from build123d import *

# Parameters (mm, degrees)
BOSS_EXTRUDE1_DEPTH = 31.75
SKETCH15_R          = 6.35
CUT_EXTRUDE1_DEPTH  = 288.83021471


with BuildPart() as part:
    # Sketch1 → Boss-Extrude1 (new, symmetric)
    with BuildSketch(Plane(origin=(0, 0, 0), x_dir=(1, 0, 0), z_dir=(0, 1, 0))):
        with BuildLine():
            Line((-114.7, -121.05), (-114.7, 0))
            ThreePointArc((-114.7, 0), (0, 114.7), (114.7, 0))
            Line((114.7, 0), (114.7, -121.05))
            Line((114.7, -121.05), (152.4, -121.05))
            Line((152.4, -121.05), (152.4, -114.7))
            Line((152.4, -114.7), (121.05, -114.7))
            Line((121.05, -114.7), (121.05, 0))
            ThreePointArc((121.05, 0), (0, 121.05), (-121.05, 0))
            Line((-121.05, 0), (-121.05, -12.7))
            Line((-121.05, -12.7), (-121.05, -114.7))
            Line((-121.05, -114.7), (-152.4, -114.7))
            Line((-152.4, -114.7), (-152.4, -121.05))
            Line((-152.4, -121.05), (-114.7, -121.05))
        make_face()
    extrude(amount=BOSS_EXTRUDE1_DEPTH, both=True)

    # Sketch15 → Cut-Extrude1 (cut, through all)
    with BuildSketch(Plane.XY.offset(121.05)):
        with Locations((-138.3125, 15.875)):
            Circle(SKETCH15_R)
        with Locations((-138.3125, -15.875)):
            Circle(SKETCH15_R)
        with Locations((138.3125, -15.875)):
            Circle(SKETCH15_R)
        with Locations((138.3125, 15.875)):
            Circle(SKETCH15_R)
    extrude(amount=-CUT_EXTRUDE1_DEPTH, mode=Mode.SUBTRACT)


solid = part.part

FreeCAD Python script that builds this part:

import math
import FreeCAD as App
import Part
import Sketcher

V = App.Vector

doc = App.newDocument("Part")
body = doc.addObject("PartDesign::Body", "Body")

# Sketch on XZ plane
sketch1 = doc.addObject("Sketcher::SketchObject", "Sketch")
body.addObject(sketch1)
sketch1.AttachmentSupport = (doc.XZ_Plane, [""])
sketch1.MapMode = "FlatFace"
sketch1.addGeometry([
    Part.LineSegment(V(-115, 121, 0), V(-115, 0, 0)),  # 0
    Part.ArcOfCircle(Part.Circle(V(0, 0, 0), V(0, 0, 1), 115), math.radians(180), math.radians(360)),  # 1
    Part.LineSegment(V(115, 0, 0), V(115, 121, 0)),  # 2
    Part.LineSegment(V(115, 121, 0), V(152, 121, 0)),  # 3
    Part.LineSegment(V(152, 121, 0), V(152, 115, 0)),  # 4
    Part.LineSegment(V(152, 115, 0), V(121, 115, 0)),  # 5
    Part.LineSegment(V(121, 115, 0), V(121, 0, 0)),  # 6
    Part.ArcOfCircle(Part.Circle(V(0, 0, 0), V(0, 0, 1), 121), math.radians(180), math.radians(360)),  # 7
    Part.LineSegment(V(-121, 0, 0), V(-121, 115, 0)),  # 8
    Part.LineSegment(V(-121, 115, 0), V(-152, 115, 0)),  # 9
    Part.LineSegment(V(-152, 115, 0), V(-152, 121, 0)),  # 10
    Part.LineSegment(V(-152, 121, 0), V(-115, 121, 0)),  # 11
], False)
sketch1.addConstraint([
    Sketcher.Constraint("Tangent", 0, 2, 1, 1),
    Sketcher.Constraint("Tangent", 1, 2, 2, 1),
    Sketcher.Constraint("Coincident", 2, 2, 3, 1),
    Sketcher.Constraint("Coincident", 3, 2, 4, 1),
    Sketcher.Constraint("Coincident", 4, 2, 5, 1),
    Sketcher.Constraint("Coincident", 5, 2, 6, 1),
    Sketcher.Constraint("Tangent", 6, 2, 7, 2),
    Sketcher.Constraint("Tangent", 7, 1, 8, 1),
    Sketcher.Constraint("Coincident", 8, 2, 9, 1),
    Sketcher.Constraint("Coincident", 9, 2, 10, 1),
    Sketcher.Constraint("Coincident", 10, 2, 11, 1),
    Sketcher.Constraint("Coincident", 11, 2, 0, 1),
    Sketcher.Constraint("Vertical", 0),
    Sketcher.Constraint("Vertical", 2),
    Sketcher.Constraint("Horizontal", 3),
    Sketcher.Constraint("Vertical", 4),
    Sketcher.Constraint("Horizontal", 5),
    Sketcher.Constraint("Vertical", 6),
    Sketcher.Constraint("Vertical", 8),
    Sketcher.Constraint("Horizontal", 9),
    Sketcher.Constraint("Vertical", 10),
    Sketcher.Constraint("Horizontal", 11),
    Sketcher.Constraint("Coincident", 1, 3, -1, 1),
    Sketcher.Constraint("Coincident", 7, 3, -1, 1),
    Sketcher.Constraint("Symmetric", 4, 2, 9, 2, -2),
    Sketcher.Constraint("Horizontal", 3, 2, 10, 2),
    Sketcher.Constraint("Radius", 1, 114.7),
    Sketcher.Constraint("Radius", 7, 121.05),
    Sketcher.Constraint("DistanceX", 3, 1, 3, 2, 37.7),
    Sketcher.Constraint("DistanceY", 6, 2, 6, 1, 114.7),
    Sketcher.Constraint("DistanceY", 0, 2, 0, 1, 121.05),
])
pad1 = doc.addObject("PartDesign::Pad", "Pad")
body.addObject(pad1)
pad1.Profile = sketch1
pad1.Length = 63.5
pad1.Midplane = True

# Sketch on XY plane
sketch2 = doc.addObject("Sketcher::SketchObject", "Sketch001")
body.addObject(sketch2)
sketch2.AttachmentSupport = (doc.XY_Plane, [""])
sketch2.MapMode = "FlatFace"
sketch2.AttachmentOffset = App.Placement(V(0, 0, 121.05), App.Rotation())
sketch2.addGeometry([
    Part.Circle(V(-138, 16, 0), V(0, 0, 1), 6),
    Part.Circle(V(-138, -16, 0), V(0, 0, 1), 6),
    Part.Circle(V(138, -16, 0), V(0, 0, 1), 6),
    Part.Circle(V(138, 16, 0), V(0, 0, 1), 6),
], False)
sketch2.addConstraint([
    Sketcher.Constraint("Equal", 0, 1),
    Sketcher.Constraint("Equal", 1, 2),
    Sketcher.Constraint("Equal", 2, 3),
    Sketcher.Constraint("Symmetric", 0, 3, 2, 3, -1, 1),
    Sketcher.Constraint("Symmetric", 1, 3, 3, 3, -1, 1),
    Sketcher.Constraint("Symmetric", 1, 3, 2, 3, -2),
    Sketcher.Constraint("Diameter", 0, 12.7),
    Sketcher.Constraint("DistanceY", 1, 3, 0, 3, 31.75),
    Sketcher.Constraint("DistanceX", 1, 3, 2, 3, 276.625),
])
pocket1 = doc.addObject("PartDesign::Pocket", "Pocket")
body.addObject(pocket1)
pocket1.Profile = sketch2
pocket1.Type = "ThroughAll"

doc.recompute()
